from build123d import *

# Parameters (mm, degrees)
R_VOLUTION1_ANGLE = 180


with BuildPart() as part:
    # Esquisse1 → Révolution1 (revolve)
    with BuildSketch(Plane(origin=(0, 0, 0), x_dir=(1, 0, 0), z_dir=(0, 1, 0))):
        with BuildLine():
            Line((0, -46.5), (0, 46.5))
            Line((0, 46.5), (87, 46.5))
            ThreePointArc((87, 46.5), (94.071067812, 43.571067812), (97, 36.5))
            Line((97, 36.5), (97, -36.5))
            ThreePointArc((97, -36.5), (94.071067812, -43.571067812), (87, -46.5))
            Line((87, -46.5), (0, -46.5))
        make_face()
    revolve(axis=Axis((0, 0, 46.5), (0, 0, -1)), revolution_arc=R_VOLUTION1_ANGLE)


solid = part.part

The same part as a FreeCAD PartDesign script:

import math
import FreeCAD as App
import Part
import Sketcher

V = App.Vector

doc = App.newDocument("Part")
body = doc.addObject("PartDesign::Body", "Body")

sketch1 = body.newObject("Sketcher::SketchObject", "Sketch")
sketch1.AttachmentSupport = (doc.getObject("XZ_Plane"), [""])
sketch1.MapMode = "FlatFace"
sketch1.addGeometry(Part.LineSegment(V(0, -46, 0), V(0, 46, 0)), False)
sketch1.addGeometry(Part.LineSegment(V(0, 46, 0), V(87, 46, 0)), False)
sketch1.addGeometry(Part.ArcOfCircle(Part.Circle(V(87, 36, 0), V(0, 0, 1), 10), math.radians(0), math.radians(90)), False)
sketch1.addGeometry(Part.LineSegment(V(97, 36, 0), V(97, -36, 0)), False)
sketch1.addGeometry(Part.ArcOfCircle(Part.Circle(V(87, -36, 0), V(0, 0, 1), 10), math.radians(-90), math.radians(0)), False)
sketch1.addGeometry(Part.LineSegment(V(87, -46, 0), V(0, -46, 0)), False)
sketch1.addConstraint(Sketcher.Constraint("Coincident", 0, 2, 1, 1))
sketch1.addConstraint(Sketcher.Constraint("Tangent", 1, 2, 2, 2))
sketch1.addConstraint(Sketcher.Constraint("Tangent", 2, 1, 3, 1))
sketch1.addConstraint(Sketcher.Constraint("Tangent", 3, 2, 4, 2))
sketch1.addConstraint(Sketcher.Constraint("Tangent", 4, 1, 5, 1))
sketch1.addConstraint(Sketcher.Constraint("Coincident", 5, 2, 0, 1))
sketch1.addConstraint(Sketcher.Constraint("Vertical", 0))
sketch1.addConstraint(Sketcher.Constraint("Horizontal", 1))
sketch1.addConstraint(Sketcher.Constraint("Vertical", 3))
sketch1.addConstraint(Sketcher.Constraint("Horizontal", 5))
sketch1.addConstraint(Sketcher.Constraint("Equal", 2, 4))
sketch1.addConstraint(Sketcher.Constraint("Symmetric", 0, 2, 5, 2, -1, 1))
sketch1.addConstraint(Sketcher.Constraint("Radius", 2, 10.0))
sketch1.addConstraint(Sketcher.Constraint("DistanceX", 1, 1, 1, 2, 87.0))
sketch1.addConstraint(Sketcher.Constraint("DistanceY", 0, 1, 0, 2, 93.0))
revolution = body.newObject("PartDesign::Revolution", "Revolution")
revolution.Profile = sketch1
revolution.ReferenceAxis = (sketch1, ["V_Axis"])
revolution.Angle = 180
revolution.Reversed = True

doc.recompute()
